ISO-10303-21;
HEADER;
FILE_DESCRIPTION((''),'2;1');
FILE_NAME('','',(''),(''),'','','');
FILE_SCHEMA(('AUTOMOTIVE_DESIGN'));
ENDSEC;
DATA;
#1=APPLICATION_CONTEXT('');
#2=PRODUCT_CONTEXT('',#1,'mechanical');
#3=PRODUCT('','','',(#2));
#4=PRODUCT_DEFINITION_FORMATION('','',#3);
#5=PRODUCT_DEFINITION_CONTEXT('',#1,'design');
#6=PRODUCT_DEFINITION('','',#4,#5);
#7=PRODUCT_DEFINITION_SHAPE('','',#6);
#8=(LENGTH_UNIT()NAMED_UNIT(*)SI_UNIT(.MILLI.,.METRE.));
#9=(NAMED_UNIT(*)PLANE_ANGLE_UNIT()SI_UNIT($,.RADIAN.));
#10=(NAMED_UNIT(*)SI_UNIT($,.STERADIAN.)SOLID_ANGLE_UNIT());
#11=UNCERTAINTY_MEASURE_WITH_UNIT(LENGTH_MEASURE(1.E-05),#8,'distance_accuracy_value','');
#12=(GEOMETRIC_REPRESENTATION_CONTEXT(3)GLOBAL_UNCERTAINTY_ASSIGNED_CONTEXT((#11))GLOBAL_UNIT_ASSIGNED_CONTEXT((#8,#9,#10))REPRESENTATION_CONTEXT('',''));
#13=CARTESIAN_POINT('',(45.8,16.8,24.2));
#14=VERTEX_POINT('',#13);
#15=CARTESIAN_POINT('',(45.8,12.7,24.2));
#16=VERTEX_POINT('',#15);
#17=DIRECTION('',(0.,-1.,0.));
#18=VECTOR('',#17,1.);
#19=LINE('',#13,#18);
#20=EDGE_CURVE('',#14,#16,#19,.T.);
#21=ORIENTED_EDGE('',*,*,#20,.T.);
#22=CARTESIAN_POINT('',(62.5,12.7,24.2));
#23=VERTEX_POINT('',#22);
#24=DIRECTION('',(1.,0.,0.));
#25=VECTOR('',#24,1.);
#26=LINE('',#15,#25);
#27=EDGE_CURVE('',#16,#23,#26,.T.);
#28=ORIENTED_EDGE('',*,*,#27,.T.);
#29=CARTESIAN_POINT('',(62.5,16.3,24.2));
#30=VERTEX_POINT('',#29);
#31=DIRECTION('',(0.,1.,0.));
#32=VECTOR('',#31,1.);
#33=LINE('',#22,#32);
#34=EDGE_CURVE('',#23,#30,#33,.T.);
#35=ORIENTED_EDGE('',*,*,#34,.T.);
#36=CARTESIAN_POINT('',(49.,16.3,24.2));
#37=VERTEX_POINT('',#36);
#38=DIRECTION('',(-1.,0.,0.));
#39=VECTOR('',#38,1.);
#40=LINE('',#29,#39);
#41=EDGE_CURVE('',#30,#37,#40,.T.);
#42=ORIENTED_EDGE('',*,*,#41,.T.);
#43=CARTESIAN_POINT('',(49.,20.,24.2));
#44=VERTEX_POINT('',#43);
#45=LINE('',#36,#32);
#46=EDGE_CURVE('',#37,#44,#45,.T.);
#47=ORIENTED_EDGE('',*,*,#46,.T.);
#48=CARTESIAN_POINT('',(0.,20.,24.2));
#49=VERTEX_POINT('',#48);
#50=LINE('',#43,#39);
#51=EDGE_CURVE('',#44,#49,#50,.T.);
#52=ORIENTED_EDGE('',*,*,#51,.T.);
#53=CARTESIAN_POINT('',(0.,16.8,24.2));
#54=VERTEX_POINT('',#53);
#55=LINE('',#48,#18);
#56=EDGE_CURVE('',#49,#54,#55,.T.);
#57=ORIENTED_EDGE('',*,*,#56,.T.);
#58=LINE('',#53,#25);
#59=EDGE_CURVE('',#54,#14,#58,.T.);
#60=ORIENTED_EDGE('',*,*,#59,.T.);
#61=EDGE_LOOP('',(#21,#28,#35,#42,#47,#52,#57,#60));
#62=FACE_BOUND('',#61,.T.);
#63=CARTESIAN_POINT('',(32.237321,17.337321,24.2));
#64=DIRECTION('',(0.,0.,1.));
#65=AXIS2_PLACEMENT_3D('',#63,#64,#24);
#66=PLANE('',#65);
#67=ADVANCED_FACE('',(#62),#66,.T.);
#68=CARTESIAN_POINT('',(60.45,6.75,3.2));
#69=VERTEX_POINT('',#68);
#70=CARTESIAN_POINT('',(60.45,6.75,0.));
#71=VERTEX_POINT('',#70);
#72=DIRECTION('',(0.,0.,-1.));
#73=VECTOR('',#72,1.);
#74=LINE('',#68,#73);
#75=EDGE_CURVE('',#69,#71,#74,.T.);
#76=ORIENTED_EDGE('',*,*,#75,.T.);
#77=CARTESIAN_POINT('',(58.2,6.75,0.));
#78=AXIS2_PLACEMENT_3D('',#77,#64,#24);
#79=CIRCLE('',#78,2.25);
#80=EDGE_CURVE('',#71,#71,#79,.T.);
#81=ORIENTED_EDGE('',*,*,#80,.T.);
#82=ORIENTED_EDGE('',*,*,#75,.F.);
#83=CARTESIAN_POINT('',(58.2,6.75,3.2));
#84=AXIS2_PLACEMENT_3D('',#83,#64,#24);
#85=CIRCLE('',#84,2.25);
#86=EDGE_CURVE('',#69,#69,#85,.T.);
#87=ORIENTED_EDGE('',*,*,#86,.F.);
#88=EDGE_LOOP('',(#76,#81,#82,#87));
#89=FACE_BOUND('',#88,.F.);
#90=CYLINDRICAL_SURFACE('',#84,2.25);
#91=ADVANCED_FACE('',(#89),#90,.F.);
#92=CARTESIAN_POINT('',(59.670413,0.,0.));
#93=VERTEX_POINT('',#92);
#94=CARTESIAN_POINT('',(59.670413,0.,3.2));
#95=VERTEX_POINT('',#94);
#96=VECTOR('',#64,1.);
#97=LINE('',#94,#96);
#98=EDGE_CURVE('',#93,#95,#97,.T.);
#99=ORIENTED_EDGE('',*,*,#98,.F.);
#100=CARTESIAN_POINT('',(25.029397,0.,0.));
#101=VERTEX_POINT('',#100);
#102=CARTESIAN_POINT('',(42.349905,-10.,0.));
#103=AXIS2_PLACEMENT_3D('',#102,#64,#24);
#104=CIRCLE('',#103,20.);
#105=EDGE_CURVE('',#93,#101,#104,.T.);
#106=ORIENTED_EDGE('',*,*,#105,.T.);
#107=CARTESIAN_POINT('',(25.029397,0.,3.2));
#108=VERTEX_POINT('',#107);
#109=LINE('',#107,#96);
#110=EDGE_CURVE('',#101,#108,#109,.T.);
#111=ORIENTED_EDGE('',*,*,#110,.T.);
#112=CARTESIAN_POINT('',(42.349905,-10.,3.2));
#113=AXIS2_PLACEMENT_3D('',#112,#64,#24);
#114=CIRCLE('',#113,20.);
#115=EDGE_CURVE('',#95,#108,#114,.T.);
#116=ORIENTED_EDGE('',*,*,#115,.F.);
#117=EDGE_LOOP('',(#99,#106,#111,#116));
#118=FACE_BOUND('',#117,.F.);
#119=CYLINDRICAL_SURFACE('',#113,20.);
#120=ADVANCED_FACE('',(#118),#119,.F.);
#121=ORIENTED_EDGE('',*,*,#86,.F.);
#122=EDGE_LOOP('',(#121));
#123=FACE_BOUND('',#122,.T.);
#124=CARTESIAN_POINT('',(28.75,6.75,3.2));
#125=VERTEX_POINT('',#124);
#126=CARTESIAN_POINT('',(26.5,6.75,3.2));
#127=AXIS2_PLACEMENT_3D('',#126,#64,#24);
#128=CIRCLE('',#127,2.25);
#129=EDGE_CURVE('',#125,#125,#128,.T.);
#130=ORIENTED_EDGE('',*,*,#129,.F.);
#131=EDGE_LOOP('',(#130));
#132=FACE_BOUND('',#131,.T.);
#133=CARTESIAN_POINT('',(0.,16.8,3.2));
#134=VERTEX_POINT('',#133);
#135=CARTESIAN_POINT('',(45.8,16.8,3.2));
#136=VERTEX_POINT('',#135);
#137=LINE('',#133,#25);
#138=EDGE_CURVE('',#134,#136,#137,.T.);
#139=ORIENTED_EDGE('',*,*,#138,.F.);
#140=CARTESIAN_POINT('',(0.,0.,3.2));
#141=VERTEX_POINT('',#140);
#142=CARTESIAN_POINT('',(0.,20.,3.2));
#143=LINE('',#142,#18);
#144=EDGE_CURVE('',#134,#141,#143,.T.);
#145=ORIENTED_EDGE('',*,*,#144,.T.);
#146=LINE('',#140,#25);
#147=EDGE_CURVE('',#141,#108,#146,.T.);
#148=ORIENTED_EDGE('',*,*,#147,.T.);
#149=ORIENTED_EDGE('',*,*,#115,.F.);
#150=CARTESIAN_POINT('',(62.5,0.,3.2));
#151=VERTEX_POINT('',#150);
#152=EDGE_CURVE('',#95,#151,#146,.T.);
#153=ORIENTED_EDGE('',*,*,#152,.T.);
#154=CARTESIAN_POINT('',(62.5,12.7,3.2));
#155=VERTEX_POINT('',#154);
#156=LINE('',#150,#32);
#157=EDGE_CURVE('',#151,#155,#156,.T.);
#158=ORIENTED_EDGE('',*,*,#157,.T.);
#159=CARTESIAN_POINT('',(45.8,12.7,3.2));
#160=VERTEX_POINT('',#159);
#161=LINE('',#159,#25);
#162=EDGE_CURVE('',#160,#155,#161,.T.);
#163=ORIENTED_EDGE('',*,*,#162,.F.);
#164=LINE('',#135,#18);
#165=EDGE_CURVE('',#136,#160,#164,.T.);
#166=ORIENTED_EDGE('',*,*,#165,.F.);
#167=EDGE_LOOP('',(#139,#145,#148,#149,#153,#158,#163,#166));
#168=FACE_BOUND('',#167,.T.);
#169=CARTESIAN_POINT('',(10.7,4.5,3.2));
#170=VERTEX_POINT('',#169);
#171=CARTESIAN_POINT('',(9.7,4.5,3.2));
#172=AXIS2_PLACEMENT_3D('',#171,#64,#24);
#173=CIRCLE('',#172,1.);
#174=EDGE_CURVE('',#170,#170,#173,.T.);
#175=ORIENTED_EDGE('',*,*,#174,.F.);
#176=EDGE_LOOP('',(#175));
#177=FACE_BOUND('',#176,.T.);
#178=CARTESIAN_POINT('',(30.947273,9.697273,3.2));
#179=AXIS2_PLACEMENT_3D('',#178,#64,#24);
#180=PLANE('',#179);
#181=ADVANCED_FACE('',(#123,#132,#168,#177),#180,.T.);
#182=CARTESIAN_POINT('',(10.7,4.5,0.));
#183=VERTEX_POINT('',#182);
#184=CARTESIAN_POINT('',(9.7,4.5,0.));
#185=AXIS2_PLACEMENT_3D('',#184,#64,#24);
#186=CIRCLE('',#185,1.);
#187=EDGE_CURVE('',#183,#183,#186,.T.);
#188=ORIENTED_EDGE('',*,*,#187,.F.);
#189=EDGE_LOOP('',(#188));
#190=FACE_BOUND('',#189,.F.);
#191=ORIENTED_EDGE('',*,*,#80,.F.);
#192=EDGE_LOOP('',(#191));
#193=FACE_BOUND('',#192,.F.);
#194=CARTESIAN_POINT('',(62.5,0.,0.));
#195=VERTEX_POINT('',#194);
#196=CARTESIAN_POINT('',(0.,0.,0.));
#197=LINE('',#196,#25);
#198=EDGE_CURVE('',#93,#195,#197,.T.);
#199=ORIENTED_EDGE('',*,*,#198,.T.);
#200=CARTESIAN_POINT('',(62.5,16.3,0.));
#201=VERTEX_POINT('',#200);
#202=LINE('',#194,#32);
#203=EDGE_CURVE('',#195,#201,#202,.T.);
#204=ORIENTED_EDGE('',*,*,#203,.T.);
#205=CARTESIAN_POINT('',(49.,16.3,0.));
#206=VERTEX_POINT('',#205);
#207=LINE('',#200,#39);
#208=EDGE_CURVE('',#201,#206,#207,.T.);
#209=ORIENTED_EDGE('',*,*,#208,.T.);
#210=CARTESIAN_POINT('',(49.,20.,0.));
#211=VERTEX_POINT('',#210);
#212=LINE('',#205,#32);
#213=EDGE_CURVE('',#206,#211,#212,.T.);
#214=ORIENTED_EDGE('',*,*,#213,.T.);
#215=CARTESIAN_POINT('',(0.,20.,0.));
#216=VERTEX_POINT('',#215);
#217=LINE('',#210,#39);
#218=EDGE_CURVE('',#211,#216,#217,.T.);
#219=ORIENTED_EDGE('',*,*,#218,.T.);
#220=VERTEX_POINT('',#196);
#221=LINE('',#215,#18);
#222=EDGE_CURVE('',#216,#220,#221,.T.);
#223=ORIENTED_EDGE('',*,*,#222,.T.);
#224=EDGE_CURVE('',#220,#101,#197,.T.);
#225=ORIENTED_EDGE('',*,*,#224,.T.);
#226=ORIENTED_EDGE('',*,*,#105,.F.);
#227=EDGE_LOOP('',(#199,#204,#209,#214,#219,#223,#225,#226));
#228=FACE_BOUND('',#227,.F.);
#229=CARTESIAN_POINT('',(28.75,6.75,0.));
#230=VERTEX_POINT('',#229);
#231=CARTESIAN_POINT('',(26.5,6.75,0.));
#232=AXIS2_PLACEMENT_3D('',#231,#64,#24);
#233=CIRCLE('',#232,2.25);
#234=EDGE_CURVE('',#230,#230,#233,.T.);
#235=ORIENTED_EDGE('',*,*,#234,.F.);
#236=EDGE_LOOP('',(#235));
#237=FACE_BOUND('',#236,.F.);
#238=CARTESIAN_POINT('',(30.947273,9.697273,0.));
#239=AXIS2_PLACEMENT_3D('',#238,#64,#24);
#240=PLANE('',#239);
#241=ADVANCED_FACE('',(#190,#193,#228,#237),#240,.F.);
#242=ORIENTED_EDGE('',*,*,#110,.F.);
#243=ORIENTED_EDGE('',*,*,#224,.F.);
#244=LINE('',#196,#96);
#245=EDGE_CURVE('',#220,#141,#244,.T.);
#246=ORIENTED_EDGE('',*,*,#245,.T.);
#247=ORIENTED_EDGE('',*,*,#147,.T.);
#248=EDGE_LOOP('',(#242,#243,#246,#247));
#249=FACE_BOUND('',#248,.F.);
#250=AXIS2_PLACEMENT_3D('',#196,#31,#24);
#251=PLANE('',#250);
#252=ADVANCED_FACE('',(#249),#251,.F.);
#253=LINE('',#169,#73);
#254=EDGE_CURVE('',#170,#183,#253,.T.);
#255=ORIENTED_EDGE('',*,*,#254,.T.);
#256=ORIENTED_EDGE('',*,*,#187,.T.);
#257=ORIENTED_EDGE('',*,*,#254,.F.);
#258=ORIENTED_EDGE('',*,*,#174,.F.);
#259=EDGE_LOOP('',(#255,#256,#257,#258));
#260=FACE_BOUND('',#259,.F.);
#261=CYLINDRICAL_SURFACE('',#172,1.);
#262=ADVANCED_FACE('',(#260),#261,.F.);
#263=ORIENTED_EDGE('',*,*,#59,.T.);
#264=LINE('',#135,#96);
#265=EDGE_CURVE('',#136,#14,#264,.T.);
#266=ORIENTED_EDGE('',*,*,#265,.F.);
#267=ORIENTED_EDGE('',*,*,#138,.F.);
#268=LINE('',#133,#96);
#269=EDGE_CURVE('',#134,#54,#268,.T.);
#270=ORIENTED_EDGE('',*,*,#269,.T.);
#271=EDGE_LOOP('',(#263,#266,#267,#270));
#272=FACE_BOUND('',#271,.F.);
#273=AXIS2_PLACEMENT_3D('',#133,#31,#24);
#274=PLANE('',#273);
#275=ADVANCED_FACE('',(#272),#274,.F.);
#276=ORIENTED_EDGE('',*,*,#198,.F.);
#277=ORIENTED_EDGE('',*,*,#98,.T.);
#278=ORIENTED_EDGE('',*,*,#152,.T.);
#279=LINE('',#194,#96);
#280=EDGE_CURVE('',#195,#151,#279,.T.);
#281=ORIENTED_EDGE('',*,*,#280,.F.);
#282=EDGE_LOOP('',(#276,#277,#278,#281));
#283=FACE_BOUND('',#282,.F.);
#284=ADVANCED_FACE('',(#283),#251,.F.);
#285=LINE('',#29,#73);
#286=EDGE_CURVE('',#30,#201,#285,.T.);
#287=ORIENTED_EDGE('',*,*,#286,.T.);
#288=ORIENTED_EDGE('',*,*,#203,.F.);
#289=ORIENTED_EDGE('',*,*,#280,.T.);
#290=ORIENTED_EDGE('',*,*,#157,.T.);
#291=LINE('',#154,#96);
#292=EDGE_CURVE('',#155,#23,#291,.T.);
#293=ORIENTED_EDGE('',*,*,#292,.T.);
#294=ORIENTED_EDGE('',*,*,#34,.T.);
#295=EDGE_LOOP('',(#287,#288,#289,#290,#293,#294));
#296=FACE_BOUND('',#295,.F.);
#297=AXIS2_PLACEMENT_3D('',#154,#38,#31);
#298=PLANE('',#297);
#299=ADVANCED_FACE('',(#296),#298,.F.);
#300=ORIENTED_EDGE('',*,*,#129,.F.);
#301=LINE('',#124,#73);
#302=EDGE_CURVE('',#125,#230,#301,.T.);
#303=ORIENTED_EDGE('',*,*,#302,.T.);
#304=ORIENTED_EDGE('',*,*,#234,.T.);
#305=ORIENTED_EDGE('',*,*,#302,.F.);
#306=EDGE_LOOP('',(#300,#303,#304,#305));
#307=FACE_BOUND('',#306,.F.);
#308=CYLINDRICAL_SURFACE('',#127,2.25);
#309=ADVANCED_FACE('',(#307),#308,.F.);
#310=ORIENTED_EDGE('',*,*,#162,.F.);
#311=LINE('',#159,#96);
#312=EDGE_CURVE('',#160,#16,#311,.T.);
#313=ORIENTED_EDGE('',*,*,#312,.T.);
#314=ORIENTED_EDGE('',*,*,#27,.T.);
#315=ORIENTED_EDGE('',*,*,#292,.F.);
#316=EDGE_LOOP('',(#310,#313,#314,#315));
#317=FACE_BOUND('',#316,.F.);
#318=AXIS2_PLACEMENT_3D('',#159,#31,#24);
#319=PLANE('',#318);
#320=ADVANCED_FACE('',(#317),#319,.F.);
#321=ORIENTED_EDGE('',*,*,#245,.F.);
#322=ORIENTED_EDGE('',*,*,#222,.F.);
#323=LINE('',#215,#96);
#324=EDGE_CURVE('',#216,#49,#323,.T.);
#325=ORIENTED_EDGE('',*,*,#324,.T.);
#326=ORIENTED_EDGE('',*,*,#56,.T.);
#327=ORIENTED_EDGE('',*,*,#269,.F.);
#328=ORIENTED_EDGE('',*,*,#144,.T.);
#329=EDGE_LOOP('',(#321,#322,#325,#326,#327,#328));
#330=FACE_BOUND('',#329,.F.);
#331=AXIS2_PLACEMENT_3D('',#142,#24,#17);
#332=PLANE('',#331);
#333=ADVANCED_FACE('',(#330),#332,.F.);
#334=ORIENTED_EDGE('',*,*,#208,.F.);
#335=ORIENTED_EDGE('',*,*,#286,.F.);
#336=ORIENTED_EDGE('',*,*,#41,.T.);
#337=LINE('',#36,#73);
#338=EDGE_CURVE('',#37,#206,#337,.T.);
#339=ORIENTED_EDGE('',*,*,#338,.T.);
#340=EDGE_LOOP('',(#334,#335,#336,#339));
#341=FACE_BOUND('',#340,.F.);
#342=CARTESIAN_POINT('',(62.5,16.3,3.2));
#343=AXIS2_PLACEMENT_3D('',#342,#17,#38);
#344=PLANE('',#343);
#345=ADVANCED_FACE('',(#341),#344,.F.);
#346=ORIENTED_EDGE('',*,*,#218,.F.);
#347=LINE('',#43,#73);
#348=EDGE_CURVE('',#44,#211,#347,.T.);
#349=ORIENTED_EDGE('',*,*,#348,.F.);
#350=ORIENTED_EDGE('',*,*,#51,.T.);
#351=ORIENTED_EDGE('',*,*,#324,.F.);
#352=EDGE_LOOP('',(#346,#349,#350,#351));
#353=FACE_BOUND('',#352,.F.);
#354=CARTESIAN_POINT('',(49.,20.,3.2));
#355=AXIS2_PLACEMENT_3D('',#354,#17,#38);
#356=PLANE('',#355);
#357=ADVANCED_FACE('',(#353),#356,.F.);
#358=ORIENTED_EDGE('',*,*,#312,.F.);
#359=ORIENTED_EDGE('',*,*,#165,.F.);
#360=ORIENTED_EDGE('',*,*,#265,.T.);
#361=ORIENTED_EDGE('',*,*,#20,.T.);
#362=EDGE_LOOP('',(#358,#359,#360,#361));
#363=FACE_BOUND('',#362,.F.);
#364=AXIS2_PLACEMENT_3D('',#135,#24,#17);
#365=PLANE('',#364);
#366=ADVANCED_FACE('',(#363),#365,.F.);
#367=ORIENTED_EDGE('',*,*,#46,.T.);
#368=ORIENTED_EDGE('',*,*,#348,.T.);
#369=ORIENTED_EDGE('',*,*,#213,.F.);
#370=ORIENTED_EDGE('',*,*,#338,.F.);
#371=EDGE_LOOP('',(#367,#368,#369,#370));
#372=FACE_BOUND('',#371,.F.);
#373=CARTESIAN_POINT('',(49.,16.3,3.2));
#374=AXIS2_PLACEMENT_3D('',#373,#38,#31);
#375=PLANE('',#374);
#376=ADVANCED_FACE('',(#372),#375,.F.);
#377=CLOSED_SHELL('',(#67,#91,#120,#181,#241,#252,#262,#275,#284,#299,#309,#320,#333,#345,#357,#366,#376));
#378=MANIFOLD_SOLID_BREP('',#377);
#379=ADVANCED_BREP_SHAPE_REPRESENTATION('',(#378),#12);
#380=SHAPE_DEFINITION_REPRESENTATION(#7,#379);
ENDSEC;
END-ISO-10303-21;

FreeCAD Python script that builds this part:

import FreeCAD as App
import Part
import Sketcher
from FreeCAD import Vector
Q = App.Units.Quantity

doc = App.newDocument("Part")
body = doc.addObject("PartDesign::Body", "Body")

# Sketch on XY plane
sketch1 = body.newObject("Sketcher::SketchObject", "Sketch")
sketch1.AttachmentSupport = (doc.getObject("XY_Plane"), [""])
sketch1.MapMode = "FlatFace"
sketch1.addGeometry([
    Part.LineSegment(Vector(0, 0, 0), Vector(62.5, 0, 0)),  # 0
    Part.LineSegment(Vector(62.5, 0, 0), Vector(62.5, 16.3, 0)),  # 1
    Part.LineSegment(Vector(62.5, 16.3, 0), Vector(49, 16.3, 0)),  # 2
    Part.LineSegment(Vector(49, 16.3, 0), Vector(49, 20, 0)),  # 3
    Part.LineSegment(Vector(49, 20, 0), Vector(0, 20, 0)),  # 4
    Part.LineSegment(Vector(0, 20, 0), Vector(0, 0, 0)),  # 5
], False)
sketch1.addConstraint([
    Sketcher.Constraint("Coincident", 0, 2, 1, 1),
    Sketcher.Constraint("Coincident", 1, 2, 2, 1),
    Sketcher.Constraint("Coincident", 2, 2, 3, 1),
    Sketcher.Constraint("Coincident", 3, 2, 4, 1),
    Sketcher.Constraint("Coincident", 4, 2, 5, 1),
    Sketcher.Constraint("Coincident", 5, 2, 0, 1),
    Sketcher.Constraint("Horizontal", 0),
    Sketcher.Constraint("Vertical", 1),
    Sketcher.Constraint("Horizontal", 2),
    Sketcher.Constraint("Vertical", 3),
    Sketcher.Constraint("Horizontal", 4),
    Sketcher.Constraint("Vertical", 5),
    Sketcher.Constraint("Coincident", 5, 2, -1, 1),
    Sketcher.Constraint("DistanceX", 4, 2, 4, 1, Q("49 mm")),
    Sketcher.Constraint("DistanceY", 5, 2, 5, 1, Q("20 mm")),
    Sketcher.Constraint("DistanceX", 0, 1, 0, 2, Q("62.5 mm")),
    Sketcher.Constraint("DistanceY", 1, 1, 1, 2, Q("16.3 mm")),
])
pad1 = body.newObject("PartDesign::Pad", "Pad")
pad1.Profile = sketch1
pad1.Length = 3.2

# Sketch on XY plane
sketch2 = body.newObject("Sketcher::SketchObject", "Sketch001")
sketch2.AttachmentSupport = (doc.getObject("XY_Plane"), [""])
sketch2.MapMode = "FlatFace"
sketch2.AttachmentOffset = App.Placement(Vector(0, 0, 3.2), App.Rotation())
sketch2.addGeometry(Part.Circle(Vector(42, -10, 0), Vector(0, 0, 1), 20), False)
sketch2.addConstraint([
    Sketcher.Constraint("Diameter", 0, Q("40 mm")),
    Sketcher.Constraint("DistanceY", 0, 3, -1, 1, Q("10 mm")),
    Sketcher.Constraint("DistanceX", -1, 1, 0, 3, Q("42.349905 mm")),
])
pocket1 = body.newObject("PartDesign::Pocket", "Pocket")
pocket1.Profile = sketch2
pocket1.Length = 25

# Sketch on XY plane
sketch3 = body.newObject("Sketcher::SketchObject", "Sketch002")
sketch3.AttachmentSupport = (doc.getObject("XY_Plane"), [""])
sketch3.MapMode = "FlatFace"
sketch3.AttachmentOffset = App.Placement(Vector(0, 0, 3.2), App.Rotation())
sketch3.addGeometry(Part.Circle(Vector(9.7, 4.5, 0), Vector(0, 0, 1), 1), False)
sketch3.addConstraint([
    Sketcher.Constraint("Diameter", 0, Q("2 mm")),
    Sketcher.Constraint("DistanceX", -1, 1, 0, 3, Q("9.7 mm")),
    Sketcher.Constraint("DistanceY", -1, 1, 0, 3, Q("4.5 mm")),
])
pocket2 = body.newObject("PartDesign::Pocket", "Pocket001")
pocket2.Profile = sketch3
pocket2.Length = 25

# Sketch on XY plane
sketch4 = body.newObject("Sketcher::SketchObject", "Sketch003")
sketch4.AttachmentSupport = (doc.getObject("XY_Plane"), [""])
sketch4.MapMode = "FlatFace"
sketch4.AttachmentOffset = App.Placement(Vector(0, 0, 3.2), App.Rotation())
sketch4.addGeometry([
    Part.Circle(Vector(26.5, 6.8, 0), Vector(0, 0, 1), 2.2),
    Part.Circle(Vector(58.2, 6.8, 0), Vector(0, 0, 1), 2.2),
], False)
sketch4.addConstraint([
    Sketcher.Constraint("Equal", 0, 1),
    Sketcher.Constraint("Horizontal", 0, 3, 1, 3),
    Sketcher.Constraint("Diameter", 0, Q("4.5 mm")),
    Sketcher.Constraint("DistanceX", -1, 1, 0, 3, Q("26.5 mm")),
    Sketcher.Constraint("DistanceX", -1, 1, 1, 3, Q("58.2 mm")),
    Sketcher.Constraint("DistanceY", -1, 1, 0, 3, Q("6.75 mm")),
])
pocket3 = body.newObject("PartDesign::Pocket", "Pocket002")
pocket3.Profile = sketch4
pocket3.Length = 25

# Sketch on XY plane
sketch5 = body.newObject("Sketcher::SketchObject", "Sketch004")
sketch5.AttachmentSupport = (doc.getObject("XY_Plane"), [""])
sketch5.MapMode = "FlatFace"
sketch5.AttachmentOffset = App.Placement(Vector(0, 0, 3.2), App.Rotation())
sketch5.addGeometry([
    Part.LineSegment(Vector(49, 20, 0), Vector(0, 20, 0)),  # 0
    Part.LineSegment(Vector(0, 20, 0), Vector(0, 16.8, 0)),  # 1
    Part.LineSegment(Vector(0, 16.8, 0), Vector(45.8, 16.8, 0)),  # 2
    Part.LineSegment(Vector(45.8, 16.8, 0), Vector(45.8, 12.7, 0)),  # 3
    Part.LineSegment(Vector(45.8, 12.7, 0), Vector(62.5, 12.7, 0)),  # 4
    Part.LineSegment(Vector(62.5, 12.7, 0), Vector(62.5, 16.3, 0)),  # 5
    Part.LineSegment(Vector(62.5, 16.3, 0), Vector(49, 16.3, 0)),  # 6
    Part.LineSegment(Vector(49, 16.3, 0), Vector(49, 20, 0)),  # 7
], False)
sketch5.addConstraint([
    Sketcher.Constraint("Coincident", 0, 2, 1, 1),
    Sketcher.Constraint("Coincident", 1, 2, 2, 1),
    Sketcher.Constraint("Coincident", 2, 2, 3, 1),
    Sketcher.Constraint("Coincident", 3, 2, 4, 1),
    Sketcher.Constraint("Coincident", 4, 2, 5, 1),
    Sketcher.Constraint("Coincident", 5, 2, 6, 1),
    Sketcher.Constraint("Coincident", 6, 2, 7, 1),
    Sketcher.Constraint("Coincident", 7, 2, 0, 1),
    Sketcher.Constraint("Horizontal", 0),
    Sketcher.Constraint("Vertical", 1),
    Sketcher.Constraint("Horizontal", 2),
    Sketcher.Constraint("Vertical", 3),
    Sketcher.Constraint("Horizontal", 4),
    Sketcher.Constraint("Vertical", 5),
    Sketcher.Constraint("Horizontal", 6),
    Sketcher.Constraint("Vertical", 7),
    Sketcher.Constraint("PointOnObject", 0, 2, -2),
    Sketcher.Constraint("DistanceX", 0, 2, 0, 1, Q("49 mm")),
    Sketcher.Constraint("DistanceX", 2, 1, 2, 2, Q("45.8 mm")),
    Sketcher.Constraint("DistanceX", 4, 1, 4, 2, Q("16.7 mm")),
    Sketcher.Constraint("DistanceY", 1, 2, 1, 1, Q("3.2 mm")),
    Sketcher.Constraint("DistanceY", 3, 2, 3, 1, Q("4.1 mm")),
    Sketcher.Constraint("DistanceY", 5, 1, 5, 2, Q("3.6 mm")),
    Sketcher.Constraint("DistanceY", -1, 1, 0, 2, Q("20 mm")),
])
pad2 = body.newObject("PartDesign::Pad", "Pad001")
pad2.Profile = sketch5
pad2.Length = 21

doc.recompute()
